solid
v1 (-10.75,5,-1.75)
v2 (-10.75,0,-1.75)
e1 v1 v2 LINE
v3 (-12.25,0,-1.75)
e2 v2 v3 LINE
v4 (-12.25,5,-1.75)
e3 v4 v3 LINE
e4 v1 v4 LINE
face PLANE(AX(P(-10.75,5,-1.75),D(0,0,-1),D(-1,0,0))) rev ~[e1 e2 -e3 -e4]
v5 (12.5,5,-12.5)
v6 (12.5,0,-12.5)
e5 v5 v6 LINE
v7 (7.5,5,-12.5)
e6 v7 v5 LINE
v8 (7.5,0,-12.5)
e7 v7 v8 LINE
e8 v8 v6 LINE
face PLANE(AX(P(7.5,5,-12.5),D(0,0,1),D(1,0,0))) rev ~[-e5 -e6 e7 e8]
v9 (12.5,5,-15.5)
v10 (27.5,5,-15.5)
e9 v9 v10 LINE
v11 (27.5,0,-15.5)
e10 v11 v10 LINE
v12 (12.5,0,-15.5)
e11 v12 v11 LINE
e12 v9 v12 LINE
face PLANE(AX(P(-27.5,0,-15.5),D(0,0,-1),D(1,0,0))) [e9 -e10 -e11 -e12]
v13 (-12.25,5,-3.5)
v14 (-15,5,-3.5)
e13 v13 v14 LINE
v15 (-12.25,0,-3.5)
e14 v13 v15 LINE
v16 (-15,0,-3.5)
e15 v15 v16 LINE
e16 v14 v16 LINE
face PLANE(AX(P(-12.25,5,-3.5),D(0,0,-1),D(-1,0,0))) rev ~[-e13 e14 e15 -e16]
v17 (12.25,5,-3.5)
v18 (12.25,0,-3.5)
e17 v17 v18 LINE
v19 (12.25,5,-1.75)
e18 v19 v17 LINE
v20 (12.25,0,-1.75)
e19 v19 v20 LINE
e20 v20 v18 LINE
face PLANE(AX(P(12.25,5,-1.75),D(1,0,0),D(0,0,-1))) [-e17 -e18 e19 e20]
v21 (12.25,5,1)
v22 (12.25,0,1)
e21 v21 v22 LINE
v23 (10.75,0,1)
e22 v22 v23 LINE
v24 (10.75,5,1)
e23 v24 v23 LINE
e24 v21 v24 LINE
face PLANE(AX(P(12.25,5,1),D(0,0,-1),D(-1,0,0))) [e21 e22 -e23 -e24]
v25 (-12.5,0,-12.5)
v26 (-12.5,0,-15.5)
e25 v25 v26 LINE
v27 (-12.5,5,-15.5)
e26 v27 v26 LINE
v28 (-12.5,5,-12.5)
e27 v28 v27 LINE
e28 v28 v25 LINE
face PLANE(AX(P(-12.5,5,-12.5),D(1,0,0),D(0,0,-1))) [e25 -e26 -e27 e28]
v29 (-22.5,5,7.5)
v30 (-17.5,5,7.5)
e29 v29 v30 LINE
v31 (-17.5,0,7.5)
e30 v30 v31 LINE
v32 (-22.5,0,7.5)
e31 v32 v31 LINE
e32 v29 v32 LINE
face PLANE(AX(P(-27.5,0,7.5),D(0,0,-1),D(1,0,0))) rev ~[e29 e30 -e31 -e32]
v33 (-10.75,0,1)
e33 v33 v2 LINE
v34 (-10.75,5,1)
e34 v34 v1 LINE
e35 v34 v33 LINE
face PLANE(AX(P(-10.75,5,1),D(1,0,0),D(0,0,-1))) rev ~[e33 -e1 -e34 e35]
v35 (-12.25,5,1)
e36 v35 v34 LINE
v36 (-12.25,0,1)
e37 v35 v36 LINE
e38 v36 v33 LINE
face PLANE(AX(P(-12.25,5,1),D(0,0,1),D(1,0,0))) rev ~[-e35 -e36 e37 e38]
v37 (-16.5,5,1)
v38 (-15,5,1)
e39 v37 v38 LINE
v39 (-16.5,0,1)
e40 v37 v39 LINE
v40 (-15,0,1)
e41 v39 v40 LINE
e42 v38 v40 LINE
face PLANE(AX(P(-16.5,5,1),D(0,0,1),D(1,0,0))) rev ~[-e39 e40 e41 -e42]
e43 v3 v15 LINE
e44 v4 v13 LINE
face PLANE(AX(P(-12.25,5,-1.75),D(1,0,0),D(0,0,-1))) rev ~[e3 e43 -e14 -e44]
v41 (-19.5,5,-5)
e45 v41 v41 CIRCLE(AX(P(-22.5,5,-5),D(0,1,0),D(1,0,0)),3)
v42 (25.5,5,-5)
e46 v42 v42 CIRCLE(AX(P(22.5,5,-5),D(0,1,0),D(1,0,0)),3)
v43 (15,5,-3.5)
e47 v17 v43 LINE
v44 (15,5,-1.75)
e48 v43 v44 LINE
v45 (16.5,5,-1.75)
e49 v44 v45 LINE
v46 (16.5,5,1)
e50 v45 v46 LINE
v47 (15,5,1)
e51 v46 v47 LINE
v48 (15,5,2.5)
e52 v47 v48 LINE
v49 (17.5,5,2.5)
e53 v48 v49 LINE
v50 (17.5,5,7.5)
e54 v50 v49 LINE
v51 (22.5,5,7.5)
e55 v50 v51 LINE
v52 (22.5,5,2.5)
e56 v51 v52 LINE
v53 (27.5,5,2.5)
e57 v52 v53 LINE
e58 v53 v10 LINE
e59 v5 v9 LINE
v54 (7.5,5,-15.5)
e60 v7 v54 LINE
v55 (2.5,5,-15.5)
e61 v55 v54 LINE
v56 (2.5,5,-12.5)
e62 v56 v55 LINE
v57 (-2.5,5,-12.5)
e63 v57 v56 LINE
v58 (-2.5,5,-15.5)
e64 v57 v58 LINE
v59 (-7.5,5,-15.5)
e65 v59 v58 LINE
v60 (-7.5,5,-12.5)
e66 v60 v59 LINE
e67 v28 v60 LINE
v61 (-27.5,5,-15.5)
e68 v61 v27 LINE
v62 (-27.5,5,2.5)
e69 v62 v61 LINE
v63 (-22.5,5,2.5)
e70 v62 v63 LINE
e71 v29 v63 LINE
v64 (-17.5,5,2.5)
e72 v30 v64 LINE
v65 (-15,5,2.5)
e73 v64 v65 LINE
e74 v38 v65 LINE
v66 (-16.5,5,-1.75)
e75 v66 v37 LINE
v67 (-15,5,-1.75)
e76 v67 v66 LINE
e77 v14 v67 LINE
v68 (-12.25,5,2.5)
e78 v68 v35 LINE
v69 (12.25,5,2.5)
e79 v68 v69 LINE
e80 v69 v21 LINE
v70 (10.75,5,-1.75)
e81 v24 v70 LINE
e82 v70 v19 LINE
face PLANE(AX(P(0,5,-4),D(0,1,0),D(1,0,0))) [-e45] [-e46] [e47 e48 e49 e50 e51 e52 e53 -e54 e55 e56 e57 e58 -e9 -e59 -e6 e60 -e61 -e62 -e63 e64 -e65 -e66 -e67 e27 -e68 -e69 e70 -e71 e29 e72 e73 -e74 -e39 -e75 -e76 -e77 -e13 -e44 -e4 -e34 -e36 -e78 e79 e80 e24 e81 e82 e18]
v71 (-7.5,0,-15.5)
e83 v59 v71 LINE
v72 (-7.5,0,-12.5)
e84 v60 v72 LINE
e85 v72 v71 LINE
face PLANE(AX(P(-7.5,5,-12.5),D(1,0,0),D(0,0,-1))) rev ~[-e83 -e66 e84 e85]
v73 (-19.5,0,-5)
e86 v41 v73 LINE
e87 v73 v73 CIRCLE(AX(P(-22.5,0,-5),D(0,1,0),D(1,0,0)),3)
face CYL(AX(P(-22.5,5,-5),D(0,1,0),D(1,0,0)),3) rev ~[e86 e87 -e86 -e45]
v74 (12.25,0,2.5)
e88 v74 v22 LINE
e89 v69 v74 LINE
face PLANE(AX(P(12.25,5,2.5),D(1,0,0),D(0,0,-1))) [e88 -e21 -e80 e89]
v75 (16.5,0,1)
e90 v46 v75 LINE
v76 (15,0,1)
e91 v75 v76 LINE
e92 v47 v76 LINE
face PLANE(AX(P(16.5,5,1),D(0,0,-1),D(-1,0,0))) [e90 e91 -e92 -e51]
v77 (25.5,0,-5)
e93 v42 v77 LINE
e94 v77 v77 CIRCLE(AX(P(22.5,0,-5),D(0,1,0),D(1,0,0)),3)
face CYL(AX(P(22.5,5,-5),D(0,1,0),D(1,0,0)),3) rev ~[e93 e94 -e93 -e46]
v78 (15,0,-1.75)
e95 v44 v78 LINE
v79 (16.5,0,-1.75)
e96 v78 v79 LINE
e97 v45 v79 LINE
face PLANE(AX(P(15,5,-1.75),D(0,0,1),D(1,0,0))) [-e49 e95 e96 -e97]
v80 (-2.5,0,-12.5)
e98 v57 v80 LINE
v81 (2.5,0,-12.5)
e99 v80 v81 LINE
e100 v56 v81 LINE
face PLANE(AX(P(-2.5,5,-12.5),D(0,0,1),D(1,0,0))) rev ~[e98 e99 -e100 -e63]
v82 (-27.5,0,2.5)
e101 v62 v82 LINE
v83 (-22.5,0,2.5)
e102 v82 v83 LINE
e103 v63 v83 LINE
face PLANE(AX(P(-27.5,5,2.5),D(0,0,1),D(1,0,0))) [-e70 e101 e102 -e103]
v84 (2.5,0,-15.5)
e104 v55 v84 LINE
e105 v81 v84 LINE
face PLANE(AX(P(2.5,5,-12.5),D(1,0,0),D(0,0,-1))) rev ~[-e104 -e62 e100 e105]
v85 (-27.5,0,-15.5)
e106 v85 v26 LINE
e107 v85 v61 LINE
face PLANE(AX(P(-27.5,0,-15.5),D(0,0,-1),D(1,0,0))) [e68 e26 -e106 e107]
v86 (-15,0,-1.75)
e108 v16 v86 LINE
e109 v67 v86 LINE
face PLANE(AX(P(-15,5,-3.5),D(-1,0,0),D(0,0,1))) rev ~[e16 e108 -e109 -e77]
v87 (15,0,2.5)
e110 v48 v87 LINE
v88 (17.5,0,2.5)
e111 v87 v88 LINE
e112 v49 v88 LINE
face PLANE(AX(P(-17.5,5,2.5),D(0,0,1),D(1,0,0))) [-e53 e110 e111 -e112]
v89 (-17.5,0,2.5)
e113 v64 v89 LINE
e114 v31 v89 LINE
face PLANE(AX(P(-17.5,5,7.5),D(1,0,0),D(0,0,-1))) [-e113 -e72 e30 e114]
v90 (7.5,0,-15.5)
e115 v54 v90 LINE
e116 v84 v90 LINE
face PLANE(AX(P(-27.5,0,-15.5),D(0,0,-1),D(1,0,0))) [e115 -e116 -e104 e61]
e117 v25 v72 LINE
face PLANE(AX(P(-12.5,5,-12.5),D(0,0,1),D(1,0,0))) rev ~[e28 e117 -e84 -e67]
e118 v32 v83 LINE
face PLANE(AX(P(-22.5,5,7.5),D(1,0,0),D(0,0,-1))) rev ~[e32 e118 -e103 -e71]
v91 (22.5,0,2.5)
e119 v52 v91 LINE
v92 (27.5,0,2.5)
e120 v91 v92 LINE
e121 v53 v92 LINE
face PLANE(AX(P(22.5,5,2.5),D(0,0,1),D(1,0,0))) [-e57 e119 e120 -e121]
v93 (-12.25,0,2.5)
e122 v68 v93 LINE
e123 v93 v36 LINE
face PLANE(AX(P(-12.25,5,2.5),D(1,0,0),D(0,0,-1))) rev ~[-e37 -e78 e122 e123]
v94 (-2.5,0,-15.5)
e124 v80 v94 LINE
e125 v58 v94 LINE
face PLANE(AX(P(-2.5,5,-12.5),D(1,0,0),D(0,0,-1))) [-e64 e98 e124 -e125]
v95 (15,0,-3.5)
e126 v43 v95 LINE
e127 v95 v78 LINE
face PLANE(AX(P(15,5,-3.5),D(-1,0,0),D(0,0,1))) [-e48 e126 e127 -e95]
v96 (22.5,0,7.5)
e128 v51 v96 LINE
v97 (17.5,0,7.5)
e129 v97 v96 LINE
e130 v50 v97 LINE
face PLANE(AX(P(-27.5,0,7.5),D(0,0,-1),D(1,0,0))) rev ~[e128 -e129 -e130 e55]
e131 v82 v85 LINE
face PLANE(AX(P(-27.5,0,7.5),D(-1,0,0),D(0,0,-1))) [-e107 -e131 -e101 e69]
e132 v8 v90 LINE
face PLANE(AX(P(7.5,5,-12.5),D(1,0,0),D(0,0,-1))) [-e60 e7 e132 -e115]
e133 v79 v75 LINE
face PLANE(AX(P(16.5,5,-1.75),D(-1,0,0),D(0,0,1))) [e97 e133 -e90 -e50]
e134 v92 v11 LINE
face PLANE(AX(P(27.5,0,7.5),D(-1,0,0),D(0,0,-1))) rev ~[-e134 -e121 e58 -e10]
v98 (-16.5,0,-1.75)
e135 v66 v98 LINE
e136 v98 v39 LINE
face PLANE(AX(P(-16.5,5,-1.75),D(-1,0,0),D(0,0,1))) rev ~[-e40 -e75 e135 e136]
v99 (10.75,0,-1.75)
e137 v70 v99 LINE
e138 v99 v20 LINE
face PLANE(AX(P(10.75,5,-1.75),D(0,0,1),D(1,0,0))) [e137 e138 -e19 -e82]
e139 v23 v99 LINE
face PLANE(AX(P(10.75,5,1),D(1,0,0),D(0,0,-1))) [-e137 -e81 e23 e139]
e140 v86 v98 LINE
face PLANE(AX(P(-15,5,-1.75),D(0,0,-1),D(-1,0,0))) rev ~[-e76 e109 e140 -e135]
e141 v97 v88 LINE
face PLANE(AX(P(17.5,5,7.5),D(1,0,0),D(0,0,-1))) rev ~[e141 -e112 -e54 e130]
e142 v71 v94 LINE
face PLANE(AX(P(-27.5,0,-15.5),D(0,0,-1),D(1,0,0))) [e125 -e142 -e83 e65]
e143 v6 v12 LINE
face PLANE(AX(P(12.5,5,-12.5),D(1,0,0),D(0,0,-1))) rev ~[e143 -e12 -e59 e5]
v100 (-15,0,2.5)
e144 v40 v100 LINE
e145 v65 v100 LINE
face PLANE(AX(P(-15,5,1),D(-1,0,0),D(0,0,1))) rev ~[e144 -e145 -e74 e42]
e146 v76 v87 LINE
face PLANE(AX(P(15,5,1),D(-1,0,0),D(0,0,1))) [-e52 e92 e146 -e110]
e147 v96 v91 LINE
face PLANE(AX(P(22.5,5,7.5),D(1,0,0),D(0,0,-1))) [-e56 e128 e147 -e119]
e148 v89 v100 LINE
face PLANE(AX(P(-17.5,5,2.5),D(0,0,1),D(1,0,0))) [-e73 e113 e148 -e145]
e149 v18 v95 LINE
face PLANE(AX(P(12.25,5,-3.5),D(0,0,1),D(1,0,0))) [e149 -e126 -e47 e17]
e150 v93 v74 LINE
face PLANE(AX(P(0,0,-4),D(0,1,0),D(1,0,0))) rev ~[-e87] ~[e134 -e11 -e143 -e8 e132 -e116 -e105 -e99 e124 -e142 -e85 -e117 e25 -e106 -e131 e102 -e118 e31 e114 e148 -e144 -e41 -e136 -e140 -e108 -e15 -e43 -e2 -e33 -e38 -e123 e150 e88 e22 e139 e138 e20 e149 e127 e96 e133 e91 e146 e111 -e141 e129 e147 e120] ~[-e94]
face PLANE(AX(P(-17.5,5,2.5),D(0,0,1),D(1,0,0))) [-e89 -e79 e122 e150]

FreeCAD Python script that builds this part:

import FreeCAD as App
import Part
import Sketcher
Q = App.Units.Quantity


def add_polygon(sketch, points):
    """Adds a closed chain of lines whose ends are joined by coincident constraints."""
    first, n = sketch.GeometryCount, len(points)
    for a, b in zip(points, points[1:] + points[:1]):
        sketch.addGeometry(Part.LineSegment(App.Vector(*a, 0), App.Vector(*b, 0)), False)
    for i in range(n):
        sketch.addConstraint(Sketcher.Constraint("Coincident", first + i, 2, first + (i + 1) % n, 1))

doc = App.newDocument("Part")
params = doc.addObject("Spreadsheet::Sheet", "Params")
for row, (alias, value) in enumerate([
    ("sketch1_width", "55 mm"),
    ("sketch1_height", "23 mm"),
    ("pad1_length", "5 mm"),
    ("sketch2_diameter", "6 mm"),
    ("pocket1_length", "5 mm"),
    ("sketch3_width", "1.5 mm"),
    ("pocket2_length", "10 mm"),
    ("sketch4_width", "5 mm"),
    ("sketch4_width2", "35 mm"),
    ("sketch5_width", "5 mm"),
    ("sketch5_height", "3 mm"),
], start=1):
    params.set(f"A{row}", alias)
    params.set(f"B{row}", "=" + value)
    params.setAlias(f"B{row}", alias)

body = doc.addObject("PartDesign::Body", "Body")

sketch1 = doc.addObject("Sketcher::SketchObject", "Sketch")
body.addObject(sketch1)
sketch1.AttachmentSupport = (doc.XZ_Plane, [""])
sketch1.MapMode = "FlatFace"
add_polygon(sketch1, [(-28, -16), (-28, 8), (28, 8), (28, -16)])
sketch1.addConstraint([
    Sketcher.Constraint("Vertical", 0),
    Sketcher.Constraint("Horizontal", 1),
    Sketcher.Constraint("Vertical", 2),
    Sketcher.Constraint("Horizontal", 3),
    Sketcher.Constraint("DistanceX", 1, 1, 1, 2, Q("55 mm")),
    Sketcher.Constraint("DistanceY", 0, 1, 0, 2, Q("23 mm")),
    Sketcher.Constraint("DistanceX", 0, 2, -1, 1, Q("27.5 mm")),
    Sketcher.Constraint("DistanceY", -1, 1, 0, 2, Q("7.5 mm")),
])
sketch1.setExpression("Constraints[8]", "Params.sketch1_width")
sketch1.setExpression("Constraints[9]", "Params.sketch1_height")
pad1 = doc.addObject("PartDesign::Pad", "Pad")
body.addObject(pad1)
pad1.Profile = sketch1
pad1.setExpression("Length", "Params.pad1_length")
pad1.Reversed = True

sketch2 = doc.addObject("Sketcher::SketchObject", "Sketch001")
body.addObject(sketch2)
sketch2.AttachmentSupport = (doc.XZ_Plane, [""])
sketch2.MapMode = "FlatFace"
sketch2.AttachmentOffset = App.Placement(App.Vector(0, 0, -5), App.Rotation())
sketch2.addGeometry([
    Part.Circle(App.Vector(-22.5, -5, 0), App.Vector(0, 0, 1), 3),
    Part.Circle(App.Vector(22.5, -5, 0), App.Vector(0, 0, 1), 3),
], False)
sketch2.addConstraint([
    Sketcher.Constraint("Equal", 0, 1),
    Sketcher.Constraint("Symmetric", 0, 3, 1, 3, -2),
    Sketcher.Constraint("Diameter", 0, Q("6 mm")),
    Sketcher.Constraint("DistanceY", 0, 3, -1, 1, Q("5 mm")),
    Sketcher.Constraint("DistanceX", 0, 3, 1, 3, Q("45 mm")),
])
sketch2.setExpression("Constraints[2]", "Params.sketch2_diameter")
pocket1 = doc.addObject("PartDesign::Pocket", "Pocket")
body.addObject(pocket1)
pocket1.Profile = sketch2
pocket1.setExpression("Length", "Params.pocket1_length")
pocket1.Reversed = True

sketch3 = doc.addObject("Sketcher::SketchObject", "Sketch002")
body.addObject(sketch3)
sketch3.AttachmentSupport = (doc.XZ_Plane, [""])
sketch3.MapMode = "FlatFace"
sketch3.AttachmentOffset = App.Placement(App.Vector(0, 0, -5), App.Rotation())
add_polygon(sketch3, [(-15, -3.5), (-15, -1.8), (-16.5, -1.8), (-16.5, 1), (-15, 1), (-15, 2.5), (-12.2, 2.5), (-12.2, 1), (-10.8, 1), (-10.8, -1.8), (-12.2, -1.8), (-12.2, -3.5)])
add_polygon(sketch3, [(15, -3.5), (12.2, -3.5), (12.2, -1.8), (10.8, -1.8), (10.8, 1), (12.2, 1), (12.2, 2.5), (15, 2.5), (15, 1), (16.5, 1), (16.5, -1.8), (15, -1.8)])
sketch3.addConstraint([
    Sketcher.Constraint("Vertical", 0),
    Sketcher.Constraint("Horizontal", 1),
    Sketcher.Constraint("Vertical", 2),
    Sketcher.Constraint("Horizontal", 3),
    Sketcher.Constraint("Vertical", 4),
    Sketcher.Constraint("Horizontal", 5),
    Sketcher.Constraint("Vertical", 6),
    Sketcher.Constraint("Horizontal", 7),
    Sketcher.Constraint("Vertical", 8),
    Sketcher.Constraint("Horizontal", 9),
    Sketcher.Constraint("Vertical", 10),
    Sketcher.Constraint("Horizontal", 11),
    Sketcher.Constraint("Horizontal", 12),
    Sketcher.Constraint("Vertical", 13),
    Sketcher.Constraint("Horizontal", 14),
    Sketcher.Constraint("Vertical", 15),
    Sketcher.Constraint("Horizontal", 16),
    Sketcher.Constraint("Vertical", 17),
    Sketcher.Constraint("Horizontal", 18),
    Sketcher.Constraint("Vertical", 19),
    Sketcher.Constraint("Horizontal", 20),
    Sketcher.Constraint("Vertical", 21),
    Sketcher.Constraint("Horizontal", 22),
    Sketcher.Constraint("Vertical", 23),
    Sketcher.Constraint("Symmetric", 10, 2, 12, 2, -2),
    Sketcher.Constraint("Symmetric", 8, 2, 14, 2, -2),
    Sketcher.Constraint("Symmetric", 6, 2, 16, 2, -2),
    Sketcher.Constraint("Symmetric", 4, 2, 18, 2, -2),
    Sketcher.Constraint("Symmetric", 2, 2, 20, 2, -2),
    Sketcher.Constraint("Symmetric", 0, 2, 22, 2, -2),
    Sketcher.Constraint("Horizontal", 3, 2, 6, 2),
    Sketcher.Constraint("Horizontal", 1, 2, 8, 2),
    Sketcher.Constraint("Vertical", 0, 2, 3, 2),
    Sketcher.Constraint("Vertical", 6, 2, 9, 2),
    Sketcher.Constraint("Equal", 3, 7),
    Sketcher.Constraint("Equal", 18, 2),
    Sketcher.Constraint("Equal", 22, 4),
    Sketcher.Constraint("DistanceX", 1, 2, 1, 1, Q("1.5 mm")),
    Sketcher.Constraint("DistanceX", 0, 2, -1, 1, Q("15 mm")),
    Sketcher.Constraint("DistanceY", -1, 1, 2, 2, Q("1 mm")),
    Sketcher.Constraint("DistanceX", 8, 2, 12, 2, Q("23 mm")),
    Sketcher.Constraint("DistanceY", 12, 2, 17, 2, Q("6 mm")),
])
sketch3.setExpression("Constraints[61]", "Params.sketch3_width")
pocket2 = doc.addObject("PartDesign::Pocket", "Pocket001")
body.addObject(pocket2)
pocket2.Profile = sketch3
pocket2.setExpression("Length", "Params.pocket2_length")
pocket2.Reversed = True

sketch4 = doc.addObject("Sketcher::SketchObject", "Sketch003")
body.addObject(sketch4)
sketch4.AttachmentSupport = (doc.XZ_Plane, [""])
sketch4.MapMode = "FlatFace"
sketch4.AttachmentOffset = App.Placement(App.Vector(0, 0, -5), App.Rotation())
add_polygon(sketch4, [(-28, 2), (-28, 8), (-22, 8), (-22, 2)])
add_polygon(sketch4, [(-18, 2), (-18, 8), (18, 8), (18, 2)])
add_polygon(sketch4, [(22, 2), (22, 8), (28, 8), (28, 2)])
sketch4.addConstraint([
    Sketcher.Constraint("Vertical", 0),
    Sketcher.Constraint("Horizontal", 1),
    Sketcher.Constraint("Vertical", 2),
    Sketcher.Constraint("Horizontal", 3),
    Sketcher.Constraint("Vertical", 4),
    Sketcher.Constraint("Horizontal", 5),
    Sketcher.Constraint("Vertical", 6),
    Sketcher.Constraint("Horizontal", 7),
    Sketcher.Constraint("Vertical", 8),
    Sketcher.Constraint("Horizontal", 9),
    Sketcher.Constraint("Vertical", 10),
    Sketcher.Constraint("Horizontal", 11),
    Sketcher.Constraint("Symmetric", 1, 2, 8, 2, -2),
    Sketcher.Constraint("Symmetric", 3, 2, 10, 2, -2),
    Sketcher.Constraint("Horizontal", 1, 2, 4, 2),
    Sketcher.Constraint("Horizontal", 3, 2, 6, 2),
    Sketcher.Constraint("Equal", 11, 0),
    Sketcher.Constraint("DistanceX", 1, 1, 1, 2, Q("5 mm")),
    Sketcher.Constraint("DistanceX", 5, 1, 5, 2, Q("35 mm")),
    Sketcher.Constraint("DistanceX", 1, 2, 4, 2, Q("5 mm")),
    Sketcher.Constraint("DistanceX", 5, 2, 8, 2, Q("5 mm")),
    Sketcher.Constraint("DistanceY", -1, 1, 0, 2, Q("7.5 mm")),
])
sketch4.setExpression("Constraints[29]", "Params.sketch4_width")
sketch4.setExpression("Constraints[30]", "Params.sketch4_width2")
pocket3 = doc.addObject("PartDesign::Pocket", "Pocket002")
body.addObject(pocket3)
pocket3.Profile = sketch4
pocket3.Type = "ThroughAll"
pocket3.Reversed = True

sketch5 = doc.addObject("Sketcher::SketchObject", "Sketch004")
body.addObject(sketch5)
sketch5.AttachmentSupport = (doc.XZ_Plane, [""])
sketch5.MapMode = "FlatFace"
sketch5.AttachmentOffset = App.Placement(App.Vector(0, 0, -5), App.Rotation())
add_polygon(sketch5, [(-2.5, -15.5), (-2.5, -12.5), (2.5, -12.5), (2.5, -15.5)])
add_polygon(sketch5, [(7.5, -15.5), (7.5, -12.5), (12.5, -12.5), (12.5, -15.5)])
add_polygon(sketch5, [(-12.5, -15.5), (-12.5, -12.5), (-7.5, -12.5), (-7.5, -15.5)])
sketch5.addConstraint([
    Sketcher.Constraint("Vertical", 0),
    Sketcher.Constraint("Horizontal", 1),
    Sketcher.Constraint("Vertical", 2),
    Sketcher.Constraint("Horizontal", 3),
    Sketcher.Constraint("Vertical", 4),
    Sketcher.Constraint("Horizontal", 5),
    Sketcher.Constraint("Vertical", 6),
    Sketcher.Constraint("Horizontal", 7),
    Sketcher.Constraint("Vertical", 8),
    Sketcher.Constraint("Horizontal", 9),
    Sketcher.Constraint("Vertical", 10),
    Sketcher.Constraint("Horizontal", 11),
    Sketcher.Constraint("Symmetric", 5, 2, 8, 2, -2),
    Sketcher.Constraint("Symmetric", 7, 2, 10, 2, -2),
    Sketcher.Constraint("Horizontal", 1, 2, 4, 2),
    Sketcher.Constraint("Horizontal", 3, 2, 6, 2),
    Sketcher.Constraint("Equal", 3, 5),
    Sketcher.Constraint("DistanceX", 1, 1, 1, 2, Q("5 mm")),
    Sketcher.Constraint("DistanceY", 0, 1, 0, 2, Q("3 mm")),
    Sketcher.Constraint("DistanceX", 1, 2, 4, 2, Q("5 mm")),
    Sketcher.Constraint("DistanceX", 8, 2, 0, 2, Q("10 mm")),
    Sketcher.Constraint("DistanceY", 0, 2, -1, 1, Q("12.5 mm")),
])
sketch5.setExpression("Constraints[29]", "Params.sketch5_width")
sketch5.setExpression("Constraints[30]", "Params.sketch5_height")
pocket4 = doc.addObject("PartDesign::Pocket", "Pocket003")
body.addObject(pocket4)
pocket4.Profile = sketch5
pocket4.Type = "ThroughAll"
pocket4.Reversed = True

doc.recompute()
